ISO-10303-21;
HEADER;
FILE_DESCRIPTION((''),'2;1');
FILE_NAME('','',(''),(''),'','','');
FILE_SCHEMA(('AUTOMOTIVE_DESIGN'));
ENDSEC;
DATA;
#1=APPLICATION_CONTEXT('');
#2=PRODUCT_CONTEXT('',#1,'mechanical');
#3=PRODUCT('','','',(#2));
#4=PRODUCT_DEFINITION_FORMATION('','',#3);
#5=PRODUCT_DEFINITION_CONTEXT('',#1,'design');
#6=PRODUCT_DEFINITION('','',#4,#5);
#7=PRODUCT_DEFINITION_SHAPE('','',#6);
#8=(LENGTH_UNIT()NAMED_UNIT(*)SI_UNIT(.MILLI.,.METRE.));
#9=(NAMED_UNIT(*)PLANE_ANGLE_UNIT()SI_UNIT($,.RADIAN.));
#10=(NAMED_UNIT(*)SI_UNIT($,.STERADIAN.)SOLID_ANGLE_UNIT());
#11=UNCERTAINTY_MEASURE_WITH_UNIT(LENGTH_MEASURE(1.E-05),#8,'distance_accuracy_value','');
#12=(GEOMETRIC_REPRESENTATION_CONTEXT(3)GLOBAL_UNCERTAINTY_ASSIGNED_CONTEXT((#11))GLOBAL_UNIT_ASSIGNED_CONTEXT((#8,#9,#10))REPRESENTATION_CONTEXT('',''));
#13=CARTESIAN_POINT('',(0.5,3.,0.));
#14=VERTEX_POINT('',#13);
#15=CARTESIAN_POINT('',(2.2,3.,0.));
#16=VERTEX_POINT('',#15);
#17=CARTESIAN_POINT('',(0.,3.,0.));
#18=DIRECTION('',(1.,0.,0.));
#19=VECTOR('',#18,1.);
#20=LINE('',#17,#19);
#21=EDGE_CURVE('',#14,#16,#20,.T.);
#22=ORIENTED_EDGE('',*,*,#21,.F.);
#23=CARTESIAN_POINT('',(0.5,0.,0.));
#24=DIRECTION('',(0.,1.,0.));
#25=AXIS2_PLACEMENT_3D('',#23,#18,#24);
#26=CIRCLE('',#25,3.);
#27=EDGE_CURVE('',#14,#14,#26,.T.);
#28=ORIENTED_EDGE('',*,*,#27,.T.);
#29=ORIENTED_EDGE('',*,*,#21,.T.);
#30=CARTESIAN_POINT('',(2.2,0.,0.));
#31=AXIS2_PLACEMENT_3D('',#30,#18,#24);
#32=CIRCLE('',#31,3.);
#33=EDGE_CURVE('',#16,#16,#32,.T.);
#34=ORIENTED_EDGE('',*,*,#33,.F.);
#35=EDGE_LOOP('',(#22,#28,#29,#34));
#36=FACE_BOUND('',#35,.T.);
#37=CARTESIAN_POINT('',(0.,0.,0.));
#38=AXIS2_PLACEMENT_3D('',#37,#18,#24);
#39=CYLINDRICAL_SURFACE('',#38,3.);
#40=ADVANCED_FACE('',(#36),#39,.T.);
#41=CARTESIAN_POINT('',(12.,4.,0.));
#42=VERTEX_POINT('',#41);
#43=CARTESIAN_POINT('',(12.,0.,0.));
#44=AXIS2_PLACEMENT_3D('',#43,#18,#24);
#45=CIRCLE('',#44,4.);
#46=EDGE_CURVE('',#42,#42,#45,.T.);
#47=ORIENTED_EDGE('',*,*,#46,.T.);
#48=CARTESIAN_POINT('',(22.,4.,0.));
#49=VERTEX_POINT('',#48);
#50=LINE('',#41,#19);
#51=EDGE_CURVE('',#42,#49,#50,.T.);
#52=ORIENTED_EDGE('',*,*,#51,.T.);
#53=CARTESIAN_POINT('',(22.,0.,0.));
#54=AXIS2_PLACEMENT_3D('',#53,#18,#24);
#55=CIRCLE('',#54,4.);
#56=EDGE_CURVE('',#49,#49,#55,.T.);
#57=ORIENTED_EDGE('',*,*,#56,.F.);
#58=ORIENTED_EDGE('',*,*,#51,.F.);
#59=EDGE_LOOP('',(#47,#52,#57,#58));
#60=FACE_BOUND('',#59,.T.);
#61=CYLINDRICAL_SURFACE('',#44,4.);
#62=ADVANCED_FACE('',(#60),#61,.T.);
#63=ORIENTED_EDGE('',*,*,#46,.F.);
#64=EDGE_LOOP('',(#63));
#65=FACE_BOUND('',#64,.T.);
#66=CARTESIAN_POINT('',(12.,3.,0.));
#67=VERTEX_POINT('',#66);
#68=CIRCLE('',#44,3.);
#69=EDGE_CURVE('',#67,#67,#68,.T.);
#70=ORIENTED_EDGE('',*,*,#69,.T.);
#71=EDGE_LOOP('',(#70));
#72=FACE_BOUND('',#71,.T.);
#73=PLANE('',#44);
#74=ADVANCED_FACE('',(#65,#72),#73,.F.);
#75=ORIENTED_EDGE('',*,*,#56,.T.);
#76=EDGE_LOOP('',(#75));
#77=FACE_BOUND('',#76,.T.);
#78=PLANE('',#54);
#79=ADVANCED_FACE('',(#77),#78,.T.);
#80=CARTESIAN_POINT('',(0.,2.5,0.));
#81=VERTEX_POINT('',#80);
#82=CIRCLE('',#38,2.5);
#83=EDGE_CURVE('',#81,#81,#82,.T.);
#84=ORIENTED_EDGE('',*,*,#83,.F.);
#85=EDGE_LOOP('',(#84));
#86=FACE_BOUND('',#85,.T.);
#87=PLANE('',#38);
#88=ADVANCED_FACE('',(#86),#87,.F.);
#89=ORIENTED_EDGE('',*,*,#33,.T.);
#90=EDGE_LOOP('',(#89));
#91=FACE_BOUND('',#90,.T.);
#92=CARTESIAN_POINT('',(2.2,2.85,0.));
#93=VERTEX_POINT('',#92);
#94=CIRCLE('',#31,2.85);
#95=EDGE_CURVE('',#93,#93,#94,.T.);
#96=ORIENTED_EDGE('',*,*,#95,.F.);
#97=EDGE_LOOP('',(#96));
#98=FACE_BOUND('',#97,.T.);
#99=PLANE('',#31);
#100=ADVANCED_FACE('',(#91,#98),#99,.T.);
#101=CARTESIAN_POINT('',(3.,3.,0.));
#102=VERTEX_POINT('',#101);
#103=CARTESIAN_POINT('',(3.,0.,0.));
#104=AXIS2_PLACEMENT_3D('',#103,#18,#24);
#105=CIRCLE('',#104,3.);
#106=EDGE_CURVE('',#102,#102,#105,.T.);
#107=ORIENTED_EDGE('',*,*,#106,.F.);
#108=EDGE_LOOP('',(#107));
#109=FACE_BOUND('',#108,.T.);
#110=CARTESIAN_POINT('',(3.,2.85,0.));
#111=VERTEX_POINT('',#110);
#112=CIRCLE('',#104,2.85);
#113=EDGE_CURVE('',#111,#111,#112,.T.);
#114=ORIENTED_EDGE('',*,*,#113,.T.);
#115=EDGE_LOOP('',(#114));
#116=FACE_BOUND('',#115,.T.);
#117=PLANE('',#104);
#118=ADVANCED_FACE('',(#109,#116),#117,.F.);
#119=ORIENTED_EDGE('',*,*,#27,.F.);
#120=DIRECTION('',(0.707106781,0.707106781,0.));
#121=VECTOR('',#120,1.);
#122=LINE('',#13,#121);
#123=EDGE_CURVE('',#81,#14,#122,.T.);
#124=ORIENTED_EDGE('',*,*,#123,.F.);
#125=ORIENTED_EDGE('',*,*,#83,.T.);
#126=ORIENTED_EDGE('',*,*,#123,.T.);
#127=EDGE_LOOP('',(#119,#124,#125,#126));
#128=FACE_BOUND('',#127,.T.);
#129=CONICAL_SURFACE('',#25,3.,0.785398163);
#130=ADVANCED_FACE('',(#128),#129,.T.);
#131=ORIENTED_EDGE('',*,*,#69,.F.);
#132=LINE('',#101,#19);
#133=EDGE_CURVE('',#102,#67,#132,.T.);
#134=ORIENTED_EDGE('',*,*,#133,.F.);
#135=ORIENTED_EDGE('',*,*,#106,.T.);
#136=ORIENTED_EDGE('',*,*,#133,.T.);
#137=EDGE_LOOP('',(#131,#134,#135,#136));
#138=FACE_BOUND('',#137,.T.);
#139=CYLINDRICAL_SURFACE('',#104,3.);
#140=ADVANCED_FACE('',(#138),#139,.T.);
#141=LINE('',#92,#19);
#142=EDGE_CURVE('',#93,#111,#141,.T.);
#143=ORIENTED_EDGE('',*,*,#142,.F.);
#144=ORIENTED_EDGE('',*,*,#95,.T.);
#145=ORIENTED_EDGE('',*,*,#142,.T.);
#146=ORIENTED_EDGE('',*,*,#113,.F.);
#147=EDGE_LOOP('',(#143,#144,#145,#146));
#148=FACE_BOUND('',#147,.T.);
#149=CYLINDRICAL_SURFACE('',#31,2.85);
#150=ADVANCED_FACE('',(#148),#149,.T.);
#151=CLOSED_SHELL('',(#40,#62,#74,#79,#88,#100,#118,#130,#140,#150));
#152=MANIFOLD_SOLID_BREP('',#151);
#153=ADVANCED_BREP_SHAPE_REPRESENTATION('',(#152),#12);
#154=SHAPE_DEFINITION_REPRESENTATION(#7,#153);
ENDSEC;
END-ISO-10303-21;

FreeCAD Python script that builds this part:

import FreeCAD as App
import Part
import Sketcher

V = App.Vector


def edges_at(feature, points):
    """Names of the edges that pass closest to the given points."""
    edges = feature.Shape.Edges
    near = lambda p: min(range(len(edges)), key=lambda i: edges[i].distToShape(Part.Vertex(*p))[0])
    return sorted({f"Edge{near(p) + 1}" for p in points})

doc = App.newDocument("Part")
params = doc.addObject("Spreadsheet::Sheet", "Params")
for row, (alias, value) in enumerate([
    ("sketch1_width", "22 mm"),
    ("sketch1_width2", "10 mm"),
    ("sketch1_width3", "9 mm"),
    ("sketch1_width4", "0.8 mm"),
    ("sketch1_height", "3 mm"),
    ("revolution_angle", "360 deg"),
    ("chamfer_size", "0.5 mm"),
], start=1):
    params.set(f"A{row}", alias)
    params.set(f"B{row}", "=" + value)
    params.setAlias(f"B{row}", alias)

body = doc.addObject("PartDesign::Body", "Body")

sketch1 = body.newObject("Sketcher::SketchObject", "Sketch")
sketch1.AttachmentSupport = (doc.getObject("XY_Plane"), [""])
sketch1.MapMode = "FlatFace"
sketch1.addGeometry([
    Part.LineSegment(V(0, 3, 0), V(0, 0, 0)),
    Part.LineSegment(V(0, 0, 0), V(22, 0, 0)),
    Part.LineSegment(V(22, 0, 0), V(22, 4, 0)),
    Part.LineSegment(V(22, 4, 0), V(12, 4, 0)),
    Part.LineSegment(V(12, 4, 0), V(12, 3, 0)),
    Part.LineSegment(V(12, 3, 0), V(3, 3, 0)),
    Part.LineSegment(V(3, 3, 0), V(3, 2.85, 0)),
    Part.LineSegment(V(3, 2.85, 0), V(2.2, 2.85, 0)),
    Part.LineSegment(V(2.2, 2.85, 0), V(2.2, 3, 0)),
    Part.LineSegment(V(2.2, 3, 0), V(0, 3, 0)),
], False)
sketch1.addConstraint([
    Sketcher.Constraint("Coincident", 0, 2, 1, 1),
    Sketcher.Constraint("Coincident", 1, 2, 2, 1),
    Sketcher.Constraint("Coincident", 2, 2, 3, 1),
    Sketcher.Constraint("Coincident", 3, 2, 4, 1),
    Sketcher.Constraint("Coincident", 4, 2, 5, 1),
    Sketcher.Constraint("Coincident", 5, 2, 6, 1),
    Sketcher.Constraint("Coincident", 6, 2, 7, 1),
    Sketcher.Constraint("Coincident", 7, 2, 8, 1),
    Sketcher.Constraint("Coincident", 8, 2, 9, 1),
    Sketcher.Constraint("Coincident", 9, 2, 0, 1),
    Sketcher.Constraint("Vertical", 0),
    Sketcher.Constraint("Horizontal", 1),
    Sketcher.Constraint("Vertical", 2),
    Sketcher.Constraint("Horizontal", 3),
    Sketcher.Constraint("Vertical", 4),
    Sketcher.Constraint("Horizontal", 5),
    Sketcher.Constraint("Vertical", 6),
    Sketcher.Constraint("Horizontal", 7),
    Sketcher.Constraint("Vertical", 8),
    Sketcher.Constraint("Horizontal", 9),
    Sketcher.Constraint("Coincident", 0, 2, -1, 1),
    Sketcher.Constraint("Horizontal", 5, 2, 8, 2),
    Sketcher.Constraint("DistanceX", 1, 1, 1, 2, 22.0),
    Sketcher.Constraint("DistanceX", 3, 2, 3, 1, 10.0),
    Sketcher.Constraint("DistanceX", 5, 2, 5, 1, 9.0),
    Sketcher.Constraint("DistanceX", 7, 2, 7, 1, 0.8),
    Sketcher.Constraint("DistanceY", 0, 2, 0, 1, 3.0),
    Sketcher.Constraint("DistanceY", 2, 1, 2, 2, 4.0),
    Sketcher.Constraint("DistanceY", 6, 2, 6, 1, 0.15),
])
sketch1.setExpression("Constraints[22]", "Params.sketch1_width")
sketch1.setExpression("Constraints[23]", "Params.sketch1_width2")
sketch1.setExpression("Constraints[24]", "Params.sketch1_width3")
sketch1.setExpression("Constraints[25]", "Params.sketch1_width4")
sketch1.setExpression("Constraints[26]", "Params.sketch1_height")
revolution = body.newObject("PartDesign::Revolution", "Revolution")
revolution.Profile = sketch1
revolution.ReferenceAxis = (sketch1, ["H_Axis"])
revolution.setExpression("Angle", "Params.revolution_angle")
doc.recompute()

chamfer = body.newObject("PartDesign::Chamfer", "Chamfer")
chamfer.Base = (revolution, edges_at(revolution, [(0, -3, 0)]))
chamfer.setExpression("Size", "Params.chamfer_size")

doc.recompute()
